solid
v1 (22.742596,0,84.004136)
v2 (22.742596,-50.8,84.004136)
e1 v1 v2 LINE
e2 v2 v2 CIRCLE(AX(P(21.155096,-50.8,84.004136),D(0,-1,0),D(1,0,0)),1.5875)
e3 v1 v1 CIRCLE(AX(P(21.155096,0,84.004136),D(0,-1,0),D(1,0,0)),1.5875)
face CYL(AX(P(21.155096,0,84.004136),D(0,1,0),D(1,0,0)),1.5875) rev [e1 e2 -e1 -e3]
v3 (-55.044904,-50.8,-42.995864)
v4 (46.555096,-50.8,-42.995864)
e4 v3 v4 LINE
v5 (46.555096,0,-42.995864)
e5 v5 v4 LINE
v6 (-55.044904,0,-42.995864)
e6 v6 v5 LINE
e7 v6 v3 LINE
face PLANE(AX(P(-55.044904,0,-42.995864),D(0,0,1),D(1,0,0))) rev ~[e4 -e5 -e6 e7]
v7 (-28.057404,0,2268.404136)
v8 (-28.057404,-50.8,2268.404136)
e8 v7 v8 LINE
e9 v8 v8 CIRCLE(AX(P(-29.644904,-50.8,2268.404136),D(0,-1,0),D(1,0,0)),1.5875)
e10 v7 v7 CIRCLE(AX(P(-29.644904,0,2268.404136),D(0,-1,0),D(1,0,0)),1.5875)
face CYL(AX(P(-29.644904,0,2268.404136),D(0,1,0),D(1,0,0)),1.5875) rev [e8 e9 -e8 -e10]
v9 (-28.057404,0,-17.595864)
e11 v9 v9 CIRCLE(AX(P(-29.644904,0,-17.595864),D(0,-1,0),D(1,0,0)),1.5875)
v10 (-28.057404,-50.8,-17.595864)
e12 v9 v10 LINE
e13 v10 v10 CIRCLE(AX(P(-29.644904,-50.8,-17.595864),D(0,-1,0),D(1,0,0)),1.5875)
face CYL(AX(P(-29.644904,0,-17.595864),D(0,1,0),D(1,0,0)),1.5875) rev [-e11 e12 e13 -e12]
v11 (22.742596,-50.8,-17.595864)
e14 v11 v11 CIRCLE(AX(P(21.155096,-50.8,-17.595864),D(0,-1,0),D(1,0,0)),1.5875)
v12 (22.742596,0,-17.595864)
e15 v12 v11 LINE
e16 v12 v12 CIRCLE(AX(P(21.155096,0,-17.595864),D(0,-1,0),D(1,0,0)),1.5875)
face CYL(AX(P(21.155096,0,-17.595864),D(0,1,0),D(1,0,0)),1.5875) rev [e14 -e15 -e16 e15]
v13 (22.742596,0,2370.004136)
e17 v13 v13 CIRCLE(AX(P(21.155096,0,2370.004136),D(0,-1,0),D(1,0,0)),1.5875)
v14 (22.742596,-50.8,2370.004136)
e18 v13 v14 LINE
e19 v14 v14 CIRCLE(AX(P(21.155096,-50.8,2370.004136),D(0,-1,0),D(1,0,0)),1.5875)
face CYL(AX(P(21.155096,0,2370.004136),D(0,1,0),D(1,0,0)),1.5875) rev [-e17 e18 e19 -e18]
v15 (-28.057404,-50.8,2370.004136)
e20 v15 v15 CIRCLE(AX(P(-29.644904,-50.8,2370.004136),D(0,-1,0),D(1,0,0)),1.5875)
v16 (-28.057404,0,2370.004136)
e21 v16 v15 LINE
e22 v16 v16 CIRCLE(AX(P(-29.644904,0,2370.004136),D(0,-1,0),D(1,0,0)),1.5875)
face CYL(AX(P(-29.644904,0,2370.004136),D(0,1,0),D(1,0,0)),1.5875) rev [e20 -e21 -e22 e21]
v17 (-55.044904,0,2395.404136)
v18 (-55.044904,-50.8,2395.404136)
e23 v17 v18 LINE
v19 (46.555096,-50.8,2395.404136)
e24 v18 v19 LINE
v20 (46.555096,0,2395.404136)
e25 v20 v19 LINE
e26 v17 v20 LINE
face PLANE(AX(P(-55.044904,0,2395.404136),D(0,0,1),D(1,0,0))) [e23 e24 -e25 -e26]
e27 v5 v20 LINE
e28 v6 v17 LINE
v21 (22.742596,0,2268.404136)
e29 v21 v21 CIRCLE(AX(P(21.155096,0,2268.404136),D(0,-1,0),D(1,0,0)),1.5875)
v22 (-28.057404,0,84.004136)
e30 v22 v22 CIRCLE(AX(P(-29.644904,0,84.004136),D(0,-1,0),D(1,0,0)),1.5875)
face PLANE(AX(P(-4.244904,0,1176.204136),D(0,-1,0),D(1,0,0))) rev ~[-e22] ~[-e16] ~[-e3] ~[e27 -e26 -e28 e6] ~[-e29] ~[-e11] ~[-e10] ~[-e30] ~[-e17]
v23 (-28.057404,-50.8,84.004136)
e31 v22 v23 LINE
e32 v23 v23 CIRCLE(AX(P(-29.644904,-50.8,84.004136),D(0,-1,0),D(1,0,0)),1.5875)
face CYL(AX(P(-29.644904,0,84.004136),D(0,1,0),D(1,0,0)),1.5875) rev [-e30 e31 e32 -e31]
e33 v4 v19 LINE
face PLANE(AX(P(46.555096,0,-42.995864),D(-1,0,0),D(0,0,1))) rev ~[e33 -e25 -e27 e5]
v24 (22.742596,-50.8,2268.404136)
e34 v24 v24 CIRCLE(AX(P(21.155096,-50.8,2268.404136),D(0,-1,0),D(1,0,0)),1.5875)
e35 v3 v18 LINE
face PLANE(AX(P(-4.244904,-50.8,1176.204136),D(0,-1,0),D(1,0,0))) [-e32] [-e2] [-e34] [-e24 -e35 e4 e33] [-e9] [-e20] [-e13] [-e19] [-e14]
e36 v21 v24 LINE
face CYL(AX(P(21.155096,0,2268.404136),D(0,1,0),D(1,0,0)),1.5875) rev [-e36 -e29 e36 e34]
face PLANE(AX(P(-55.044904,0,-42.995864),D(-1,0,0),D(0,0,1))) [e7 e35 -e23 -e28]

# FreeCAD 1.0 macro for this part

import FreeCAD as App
import Part
import Sketcher
from FreeCAD import Vector
Q = App.Units.Quantity


def add_polygon(sketch, points):
    """Adds a closed chain of lines whose ends are joined by coincident constraints."""
    first, n = sketch.GeometryCount, len(points)
    for a, b in zip(points, points[1:] + points[:1]):
        sketch.addGeometry(Part.LineSegment(App.Vector(*a, 0), App.Vector(*b, 0)), False)
    for i in range(n):
        sketch.addConstraint(Sketcher.Constraint("Coincident", first + i, 2, first + (i + 1) % n, 1))

doc = App.newDocument("Part")
body = doc.addObject("PartDesign::Body", "Body")

# Sketch on XZ plane
sketch1 = body.newObject("Sketcher::SketchObject", "Sketch")
sketch1.AttachmentSupport = (doc.getObject("XZ_Plane"), [""])
sketch1.MapMode = "FlatFace"
add_polygon(sketch1, [(-55, 2395.4), (-55, -43), (46.6, -43), (46.6, 2395.4)])  # lines 0-3
sketch1.addGeometry(Part.Circle(Vector(-29.6, -17.6, 0), Vector(0, 0, 1), 1.6), False)  # 4
sketch1.addGeometry(Part.Circle(Vector(-29.6, 84, 0), Vector(0, 0, 1), 1.6), False)  # 5
sketch1.addGeometry(Part.Circle(Vector(21.2, -17.6, 0), Vector(0, 0, 1), 1.6), False)  # 6
sketch1.addGeometry(Part.Circle(Vector(21.2, 84, 0), Vector(0, 0, 1), 1.6), False)  # 7
sketch1.addGeometry(Part.Circle(Vector(-29.6, 2268.4, 0), Vector(0, 0, 1), 1.6), False)  # 8
sketch1.addGeometry(Part.Circle(Vector(-29.6, 2370, 0), Vector(0, 0, 1), 1.6), False)  # 9
sketch1.addGeometry(Part.Circle(Vector(21.2, 2268.4, 0), Vector(0, 0, 1), 1.6), False)  # 10
sketch1.addGeometry(Part.Circle(Vector(21.2, 2370, 0), Vector(0, 0, 1), 1.6), False)  # 11
sketch1.addConstraint([
    Sketcher.Constraint("Vertical", 0),
    Sketcher.Constraint("Horizontal", 1),
    Sketcher.Constraint("Vertical", 2),
    Sketcher.Constraint("Horizontal", 3),
    Sketcher.Constraint("Equal", 4, 5),
    Sketcher.Constraint("Equal", 5, 6),
    Sketcher.Constraint("Equal", 6, 7),
    Sketcher.Constraint("Equal", 7, 8),
    Sketcher.Constraint("Equal", 8, 9),
    Sketcher.Constraint("Equal", 9, 10),
    Sketcher.Constraint("Equal", 10, 11),
    Sketcher.Constraint("Horizontal", 4, 3, 6, 3),
    Sketcher.Constraint("Horizontal", 5, 3, 7, 3),
    Sketcher.Constraint("Horizontal", 8, 3, 10, 3),
    Sketcher.Constraint("Horizontal", 9, 3, 11, 3),
    Sketcher.Constraint("Vertical", 4, 3, 5, 3),
    Sketcher.Constraint("Vertical", 6, 3, 7, 3),
    Sketcher.Constraint("Vertical", 5, 3, 8, 3),
    Sketcher.Constraint("Vertical", 8, 3, 9, 3),
    Sketcher.Constraint("Vertical", 7, 3, 10, 3),
    Sketcher.Constraint("Vertical", 10, 3, 11, 3),
    Sketcher.Constraint("DistanceX", 1, 1, 1, 2, Q("4 in")),
    Sketcher.Constraint("DistanceY", 0, 2, 0, 1, Q("96 in")),
    Sketcher.Constraint("Diameter", 4, Q("0.125 in")),
    Sketcher.Constraint("DistanceY", 4, 3, 5, 3, Q("4 in")),
    Sketcher.Constraint("DistanceX", 4, 3, 6, 3, Q("2 in")),
    Sketcher.Constraint("DistanceY", 5, 3, 8, 3, Q("86 in")),
    Sketcher.Constraint("DistanceY", 8, 3, 9, 3, Q("4 in")),
    Sketcher.Constraint("DistanceX", 0, 2, 4, 3, Q("1 in")),
    Sketcher.Constraint("DistanceY", 0, 2, 4, 3, Q("1 in")),
    Sketcher.Constraint("DistanceX", 4, 3, -1, 1, Q("29.644904 mm")),
    Sketcher.Constraint("DistanceY", 4, 3, -1, 1, Q("17.595864 mm")),
])
pad1 = body.newObject("PartDesign::Pad", "Pad")
pad1.Profile = sketch1
pad1.Length = Q("2 in")

doc.recompute()
